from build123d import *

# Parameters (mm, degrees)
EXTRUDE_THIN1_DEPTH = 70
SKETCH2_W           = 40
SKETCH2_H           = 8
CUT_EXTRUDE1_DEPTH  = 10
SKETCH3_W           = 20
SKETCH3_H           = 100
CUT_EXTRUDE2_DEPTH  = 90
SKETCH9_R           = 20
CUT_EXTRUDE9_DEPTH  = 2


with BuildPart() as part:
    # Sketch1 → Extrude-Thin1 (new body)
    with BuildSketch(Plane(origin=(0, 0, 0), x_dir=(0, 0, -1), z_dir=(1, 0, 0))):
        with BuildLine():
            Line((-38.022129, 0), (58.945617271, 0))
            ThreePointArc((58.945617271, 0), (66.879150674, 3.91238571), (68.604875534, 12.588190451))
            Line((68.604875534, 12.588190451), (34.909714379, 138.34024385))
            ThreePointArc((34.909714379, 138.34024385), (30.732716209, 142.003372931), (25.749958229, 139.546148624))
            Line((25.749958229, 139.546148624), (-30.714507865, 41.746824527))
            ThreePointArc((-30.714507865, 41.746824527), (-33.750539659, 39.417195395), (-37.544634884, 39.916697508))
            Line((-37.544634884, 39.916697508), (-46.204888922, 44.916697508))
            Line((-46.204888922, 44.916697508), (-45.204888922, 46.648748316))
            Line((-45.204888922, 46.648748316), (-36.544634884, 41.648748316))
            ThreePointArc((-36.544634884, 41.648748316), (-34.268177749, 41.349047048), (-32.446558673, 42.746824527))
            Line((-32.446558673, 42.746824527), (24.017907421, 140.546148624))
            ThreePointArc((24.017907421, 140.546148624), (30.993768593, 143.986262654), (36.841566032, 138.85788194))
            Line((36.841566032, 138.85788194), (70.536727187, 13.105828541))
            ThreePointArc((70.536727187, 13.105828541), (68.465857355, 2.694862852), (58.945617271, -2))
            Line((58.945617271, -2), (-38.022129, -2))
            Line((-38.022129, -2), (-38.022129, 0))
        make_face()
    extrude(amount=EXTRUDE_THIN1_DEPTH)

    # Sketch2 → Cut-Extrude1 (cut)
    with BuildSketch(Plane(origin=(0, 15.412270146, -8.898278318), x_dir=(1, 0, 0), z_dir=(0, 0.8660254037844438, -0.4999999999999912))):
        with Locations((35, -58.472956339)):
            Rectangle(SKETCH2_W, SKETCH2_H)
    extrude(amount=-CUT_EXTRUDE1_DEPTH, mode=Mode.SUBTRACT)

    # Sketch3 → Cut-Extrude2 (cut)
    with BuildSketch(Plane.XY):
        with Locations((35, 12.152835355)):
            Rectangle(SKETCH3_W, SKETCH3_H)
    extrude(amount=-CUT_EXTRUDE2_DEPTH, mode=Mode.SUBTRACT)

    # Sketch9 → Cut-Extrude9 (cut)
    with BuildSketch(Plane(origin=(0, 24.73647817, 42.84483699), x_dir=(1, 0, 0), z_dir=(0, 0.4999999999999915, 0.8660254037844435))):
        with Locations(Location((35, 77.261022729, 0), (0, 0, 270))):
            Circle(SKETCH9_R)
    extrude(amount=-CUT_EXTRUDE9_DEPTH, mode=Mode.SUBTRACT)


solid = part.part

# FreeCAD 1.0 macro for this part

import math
import FreeCAD as App
import Part
import Sketcher
from FreeCAD import Vector
Q = App.Units.Quantity

doc = App.newDocument("Part")
body = doc.addObject("PartDesign::Body", "Body")

# Sketch on YZ plane
sketch1 = body.newObject("Sketcher::SketchObject", "Sketch")
sketch1.AttachmentSupport = (doc.getObject("YZ_Plane"), [""])
sketch1.MapMode = "FlatFace"
sketch1.addGeometry([
    Part.LineSegment(Vector(0, -58.9, 0), Vector(0, 38, 0)),  # 0
    Part.LineSegment(Vector(0, 38, 0), Vector(-2, 38, 0)),  # 1
    Part.LineSegment(Vector(-2, 38, 0), Vector(-2, -58.9, 0)),  # 2
    Part.ArcOfCircle(Part.Circle(Vector(10, -58.9, 0), Vector(0, 0, 1), 12), math.radians(180), math.radians(285)),  # 3
    Part.LineSegment(Vector(13.1, -70.5, 0), Vector(138.9, -36.8, 0)),  # 4
    Part.ArcOfCircle(Part.Circle(Vector(137, -30.1, 0), Vector(0, 0, 1), 7), math.radians(-75), math.radians(60)),  # 5
    Part.LineSegment(Vector(140.5, -24, 0), Vector(42.7, 32.4, 0)),  # 6
    Part.ArcOfCircle(Part.Circle(Vector(44.2, 35, 0), Vector(0, 0, 1), 3), math.radians(150), math.radians(240)),  # 7
    Part.LineSegment(Vector(41.6, 36.5, 0), Vector(46.6, 45.2, 0)),  # 8
    Part.LineSegment(Vector(46.6, 45.2, 0), Vector(44.9, 46.2, 0)),  # 9
    Part.LineSegment(Vector(44.9, 46.2, 0), Vector(39.9, 37.5, 0)),  # 10
    Part.ArcOfCircle(Part.Circle(Vector(44.2, 35, 0), Vector(0, 0, 1), 5), math.radians(150), math.radians(240)),  # 11
    Part.LineSegment(Vector(41.7, 30.7, 0), Vector(139.5, -25.7, 0)),  # 12
    Part.ArcOfCircle(Part.Circle(Vector(137, -30.1, 0), Vector(0, 0, 1), 5), math.radians(-75), math.radians(60)),  # 13
    Part.LineSegment(Vector(138.3, -34.9, 0), Vector(12.6, -68.6, 0)),  # 14
    Part.ArcOfCircle(Part.Circle(Vector(10, -58.9, 0), Vector(0, 0, 1), 10), math.radians(180), math.radians(285)),  # 15
], False)
sketch1.addConstraint([
    Sketcher.Constraint("Coincident", 0, 2, 1, 1),
    Sketcher.Constraint("Coincident", 1, 2, 2, 1),
    Sketcher.Constraint("Tangent", 2, 2, 3, 1),
    Sketcher.Constraint("Tangent", 3, 2, 4, 1),
    Sketcher.Constraint("Tangent", 4, 2, 5, 1),
    Sketcher.Constraint("Tangent", 5, 2, 6, 1),
    Sketcher.Constraint("Tangent", 6, 2, 7, 2),
    Sketcher.Constraint("Tangent", 7, 1, 8, 1),
    Sketcher.Constraint("Coincident", 8, 2, 9, 1),
    Sketcher.Constraint("Coincident", 9, 2, 10, 1),
    Sketcher.Constraint("Tangent", 10, 2, 11, 1),
    Sketcher.Constraint("Tangent", 11, 2, 12, 1),
    Sketcher.Constraint("Tangent", 12, 2, 13, 2),
    Sketcher.Constraint("Tangent", 13, 1, 14, 1),
    Sketcher.Constraint("Tangent", 14, 2, 15, 2),
    Sketcher.Constraint("Tangent", 15, 1, 0, 1),
    Sketcher.Constraint("Vertical", 0),
    Sketcher.Constraint("Horizontal", 1),
    Sketcher.Constraint("Vertical", 2),
    Sketcher.Constraint("Coincident", 11, 3, 7, 3),
    Sketcher.Constraint("Coincident", 13, 3, 5, 3),
    Sketcher.Constraint("Coincident", 15, 3, 3, 3),
    Sketcher.Constraint("Equal", 11, 13),
    Sketcher.Constraint("PointOnObject", 0, 2, -2),
    Sketcher.Constraint("Perpendicular", 6, 8),
    Sketcher.Constraint("Perpendicular", 8, 9),
    Sketcher.Constraint("Perpendicular", 9, 10),
    Sketcher.Constraint("Perpendicular", 10, 12),
    Sketcher.Constraint("Parallel", 4, 14),
    Sketcher.Constraint("Radius", 3, Q("12 mm")),
    Sketcher.Constraint("Radius", 5, Q("7 mm")),
    Sketcher.Constraint("Radius", 7, Q("3 mm")),
    Sketcher.Constraint("Angle", 4, Q("15 deg")),
    Sketcher.Constraint("Angle", 6, Q("150 deg")),
    Sketcher.Constraint("Distance", 8, Q("10 mm")),
    Sketcher.Constraint("DistanceY", 4, 2, 7, 3, Q("71.886201 mm")),
    Sketcher.Constraint("DistanceY", 0, 1, 0, 2, Q("96.967746 mm")),
    Sketcher.Constraint("DistanceX", -1, 1, 5, 3, Q("137.046149 mm")),
    Sketcher.Constraint("DistanceY", -1, 1, 0, 2, Q("38.022129 mm")),
])
pad1 = body.newObject("PartDesign::Pad", "Pad")
pad1.Profile = sketch1
pad1.Length = 70

# Sketch on an angled plane
sketch2 = body.newObject("Sketcher::SketchObject", "Sketch001")
sketch2.Placement = App.Placement(Vector(0, 15.41227, -8.898278), App.Rotation(Vector(1, 0, 0), Vector(0, -0.5, -0.866025404), Vector(0, 0.866025404, -0.5), "ZXY"))
sketch2.addGeometry([
    Part.LineSegment(Vector(15, -54, 0), Vector(15, -62, 0)),
    Part.LineSegment(Vector(15, -62, 0), Vector(55, -62, 0)),
    Part.LineSegment(Vector(55, -62, 0), Vector(55, -54, 0)),
    Part.LineSegment(Vector(55, -54, 0), Vector(15, -54, 0)),
], False)
sketch2.addConstraint([
    Sketcher.Constraint("Coincident", 0, 2, 1, 1),
    Sketcher.Constraint("Coincident", 1, 2, 2, 1),
    Sketcher.Constraint("Coincident", 2, 2, 3, 1),
    Sketcher.Constraint("Coincident", 3, 2, 0, 1),
    Sketcher.Constraint("Vertical", 0),
    Sketcher.Constraint("Horizontal", 1),
    Sketcher.Constraint("Vertical", 2),
    Sketcher.Constraint("Horizontal", 3),
    Sketcher.Constraint("DistanceX", 1, 1, 1, 2, Q("40 mm")),
    Sketcher.Constraint("DistanceY", 0, 2, 0, 1, Q("8 mm")),
    Sketcher.Constraint("DistanceX", -1, 1, 0, 2, Q("15 mm")),
    Sketcher.Constraint("DistanceY", 0, 2, -1, 1, Q("62.472956 mm")),
])
pocket1 = body.newObject("PartDesign::Pocket", "Pocket")
pocket1.Profile = sketch2
pocket1.Length = 10

# Sketch on XY plane
sketch3 = body.newObject("Sketcher::SketchObject", "Sketch002")
sketch3.AttachmentSupport = (doc.getObject("XY_Plane"), [""])
sketch3.MapMode = "FlatFace"
sketch3.addGeometry([
    Part.LineSegment(Vector(25, 62, 0), Vector(25, -38, 0)),
    Part.LineSegment(Vector(25, -38, 0), Vector(45, -38, 0)),
    Part.LineSegment(Vector(45, -38, 0), Vector(45, 62, 0)),
    Part.LineSegment(Vector(45, 62, 0), Vector(25, 62, 0)),
], False)
sketch3.addConstraint([
    Sketcher.Constraint("Coincident", 0, 2, 1, 1),
    Sketcher.Constraint("Coincident", 1, 2, 2, 1),
    Sketcher.Constraint("Coincident", 2, 2, 3, 1),
    Sketcher.Constraint("Coincident", 3, 2, 0, 1),
    Sketcher.Constraint("Vertical", 0),
    Sketcher.Constraint("Horizontal", 1),
    Sketcher.Constraint("Vertical", 2),
    Sketcher.Constraint("Horizontal", 3),
    Sketcher.Constraint("DistanceX", 1, 1, 1, 2, Q("20 mm")),
    Sketcher.Constraint("DistanceY", 0, 2, 0, 1, Q("100 mm")),
    Sketcher.Constraint("DistanceX", -1, 1, 0, 2, Q("25 mm")),
    Sketcher.Constraint("DistanceY", 0, 2, -1, 1, Q("37.847165 mm")),
])
pocket2 = body.newObject("PartDesign::Pocket", "Pocket001")
pocket2.Profile = sketch3
pocket2.Length = 90

# Sketch on an angled plane
sketch4 = body.newObject("Sketcher::SketchObject", "Sketch003")
sketch4.Placement = App.Placement(Vector(0, 24.736478, 42.844837), App.Rotation(Vector(1, 0, 0), Vector(0, 0.866025404, -0.5), Vector(0, 0.5, 0.866025404), "ZXY"))
sketch4.addGeometry(Part.Circle(Vector(35, 77, 0), Vector(0, 0, 1), 20), False)
sketch4.addConstraint([
    Sketcher.Constraint("Diameter", 0, Q("40 mm")),
    Sketcher.Constraint("DistanceX", -1, 1, 0, 3, Q("35 mm")),
    Sketcher.Constraint("DistanceY", -1, 1, 0, 3, Q("77.261023 mm")),
])
pocket3 = body.newObject("PartDesign::Pocket", "Pocket002")
pocket3.Profile = sketch4
pocket3.Length = 2

doc.recompute()
